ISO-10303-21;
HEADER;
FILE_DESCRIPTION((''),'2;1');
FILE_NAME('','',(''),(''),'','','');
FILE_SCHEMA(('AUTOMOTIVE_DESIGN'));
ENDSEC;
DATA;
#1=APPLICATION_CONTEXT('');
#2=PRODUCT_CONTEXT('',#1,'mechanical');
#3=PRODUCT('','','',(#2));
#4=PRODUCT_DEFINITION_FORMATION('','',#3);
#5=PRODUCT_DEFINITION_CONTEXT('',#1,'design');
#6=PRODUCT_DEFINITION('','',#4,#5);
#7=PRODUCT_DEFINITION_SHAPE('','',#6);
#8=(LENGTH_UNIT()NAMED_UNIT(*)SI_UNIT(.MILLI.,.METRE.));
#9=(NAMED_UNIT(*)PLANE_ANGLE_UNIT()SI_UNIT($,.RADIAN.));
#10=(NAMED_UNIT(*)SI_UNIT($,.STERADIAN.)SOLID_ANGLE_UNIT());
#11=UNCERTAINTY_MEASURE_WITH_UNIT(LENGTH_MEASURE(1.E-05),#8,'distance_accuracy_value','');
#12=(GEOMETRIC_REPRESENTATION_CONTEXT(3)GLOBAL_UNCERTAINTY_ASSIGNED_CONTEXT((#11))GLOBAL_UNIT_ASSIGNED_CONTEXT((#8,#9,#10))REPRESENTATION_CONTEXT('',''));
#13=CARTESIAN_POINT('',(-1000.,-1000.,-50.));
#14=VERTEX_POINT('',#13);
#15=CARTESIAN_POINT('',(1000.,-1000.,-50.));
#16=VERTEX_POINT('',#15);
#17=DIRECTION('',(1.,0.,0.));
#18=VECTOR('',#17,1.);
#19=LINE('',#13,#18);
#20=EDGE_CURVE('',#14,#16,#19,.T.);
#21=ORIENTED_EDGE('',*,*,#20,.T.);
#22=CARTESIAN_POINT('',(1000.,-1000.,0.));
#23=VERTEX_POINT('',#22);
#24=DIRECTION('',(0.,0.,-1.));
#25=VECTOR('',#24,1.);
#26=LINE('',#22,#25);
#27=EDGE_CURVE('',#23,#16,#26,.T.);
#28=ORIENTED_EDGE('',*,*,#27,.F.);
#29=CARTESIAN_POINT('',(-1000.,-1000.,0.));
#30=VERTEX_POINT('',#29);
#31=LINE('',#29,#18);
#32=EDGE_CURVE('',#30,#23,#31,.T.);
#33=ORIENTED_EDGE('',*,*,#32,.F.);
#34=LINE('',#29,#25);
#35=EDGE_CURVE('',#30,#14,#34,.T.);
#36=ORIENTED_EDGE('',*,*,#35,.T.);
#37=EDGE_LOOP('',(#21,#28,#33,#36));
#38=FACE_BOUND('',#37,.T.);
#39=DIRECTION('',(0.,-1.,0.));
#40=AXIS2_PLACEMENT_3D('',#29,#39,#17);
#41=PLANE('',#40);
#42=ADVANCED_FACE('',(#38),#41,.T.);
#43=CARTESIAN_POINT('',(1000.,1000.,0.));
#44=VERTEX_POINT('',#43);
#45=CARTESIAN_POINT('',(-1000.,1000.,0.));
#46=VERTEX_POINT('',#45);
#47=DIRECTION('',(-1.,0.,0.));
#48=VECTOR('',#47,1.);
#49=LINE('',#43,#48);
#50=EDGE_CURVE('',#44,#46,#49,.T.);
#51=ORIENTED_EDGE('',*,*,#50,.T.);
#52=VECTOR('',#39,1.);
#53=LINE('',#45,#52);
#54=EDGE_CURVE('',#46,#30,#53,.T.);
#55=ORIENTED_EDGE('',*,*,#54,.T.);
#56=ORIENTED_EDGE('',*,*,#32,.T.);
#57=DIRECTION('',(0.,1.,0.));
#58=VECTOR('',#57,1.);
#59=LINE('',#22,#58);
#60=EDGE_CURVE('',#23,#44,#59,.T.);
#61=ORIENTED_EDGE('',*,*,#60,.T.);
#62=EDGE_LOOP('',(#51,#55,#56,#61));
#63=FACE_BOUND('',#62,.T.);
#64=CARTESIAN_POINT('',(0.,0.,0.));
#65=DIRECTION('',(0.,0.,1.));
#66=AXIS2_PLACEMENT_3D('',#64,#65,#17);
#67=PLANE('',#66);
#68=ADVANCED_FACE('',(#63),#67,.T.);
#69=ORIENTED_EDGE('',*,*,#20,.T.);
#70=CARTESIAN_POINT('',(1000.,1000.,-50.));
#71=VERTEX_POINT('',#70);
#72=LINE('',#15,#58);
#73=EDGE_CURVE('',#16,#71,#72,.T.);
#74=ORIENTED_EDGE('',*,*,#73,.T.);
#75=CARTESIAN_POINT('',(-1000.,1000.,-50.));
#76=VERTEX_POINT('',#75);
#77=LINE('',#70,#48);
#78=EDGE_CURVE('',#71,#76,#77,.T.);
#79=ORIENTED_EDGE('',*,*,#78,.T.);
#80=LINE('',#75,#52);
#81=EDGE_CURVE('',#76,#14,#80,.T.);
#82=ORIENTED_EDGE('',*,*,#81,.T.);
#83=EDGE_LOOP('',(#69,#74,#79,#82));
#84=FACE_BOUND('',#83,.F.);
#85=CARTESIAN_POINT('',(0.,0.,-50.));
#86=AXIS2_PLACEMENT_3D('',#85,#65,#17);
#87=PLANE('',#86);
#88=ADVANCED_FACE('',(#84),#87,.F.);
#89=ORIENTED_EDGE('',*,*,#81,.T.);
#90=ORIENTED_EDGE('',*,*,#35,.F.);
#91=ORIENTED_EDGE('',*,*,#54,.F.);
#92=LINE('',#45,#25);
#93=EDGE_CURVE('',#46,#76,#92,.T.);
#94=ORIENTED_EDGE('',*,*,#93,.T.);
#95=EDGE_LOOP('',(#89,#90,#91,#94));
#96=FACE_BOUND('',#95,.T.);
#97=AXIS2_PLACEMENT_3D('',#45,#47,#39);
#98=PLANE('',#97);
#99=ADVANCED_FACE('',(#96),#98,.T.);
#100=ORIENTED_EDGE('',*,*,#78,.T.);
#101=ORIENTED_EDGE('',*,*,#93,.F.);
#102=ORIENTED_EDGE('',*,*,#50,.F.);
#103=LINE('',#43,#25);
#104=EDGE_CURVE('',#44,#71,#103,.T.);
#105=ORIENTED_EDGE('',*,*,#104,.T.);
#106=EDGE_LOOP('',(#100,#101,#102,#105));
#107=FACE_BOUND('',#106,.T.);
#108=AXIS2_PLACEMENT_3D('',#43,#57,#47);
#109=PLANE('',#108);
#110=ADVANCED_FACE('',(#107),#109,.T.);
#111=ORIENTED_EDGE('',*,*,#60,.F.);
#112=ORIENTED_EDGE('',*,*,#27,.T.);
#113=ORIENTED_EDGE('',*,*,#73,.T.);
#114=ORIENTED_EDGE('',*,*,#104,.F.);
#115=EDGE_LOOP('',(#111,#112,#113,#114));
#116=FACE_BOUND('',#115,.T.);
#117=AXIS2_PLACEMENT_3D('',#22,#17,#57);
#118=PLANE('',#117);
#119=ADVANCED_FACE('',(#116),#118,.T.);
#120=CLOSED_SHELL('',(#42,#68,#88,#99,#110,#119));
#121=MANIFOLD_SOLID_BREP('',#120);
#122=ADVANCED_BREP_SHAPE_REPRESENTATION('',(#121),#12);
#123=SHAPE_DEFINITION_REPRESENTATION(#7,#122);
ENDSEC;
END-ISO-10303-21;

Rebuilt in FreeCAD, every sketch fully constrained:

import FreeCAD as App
import Part
import Sketcher

V = App.Vector


def add_polygon(sketch, points):
    """Adds a closed chain of lines whose ends are joined by coincident constraints."""
    first, n = sketch.GeometryCount, len(points)
    for a, b in zip(points, points[1:] + points[:1]):
        sketch.addGeometry(Part.LineSegment(App.Vector(*a, 0), App.Vector(*b, 0)), False)
    for i in range(n):
        sketch.addConstraint(Sketcher.Constraint("Coincident", first + i, 2, first + (i + 1) % n, 1))

doc = App.newDocument("Part")
body = doc.addObject("PartDesign::Body", "Body")

# Sketch on XY plane
sketch1 = body.newObject("Sketcher::SketchObject", "Sketch")
sketch1.AttachmentSupport = (doc.getObject("XY_Plane"), [""])
sketch1.MapMode = "FlatFace"
add_polygon(sketch1, [(1000, -1000), (1000, 1000), (-1000, 1000), (-1000, -1000)])  # lines 0-3
sketch1.addConstraint([
    Sketcher.Constraint("Vertical", 0),
    Sketcher.Constraint("Horizontal", 1),
    Sketcher.Constraint("Vertical", 2),
    Sketcher.Constraint("Horizontal", 3),
    Sketcher.Constraint("Symmetric", 0, 2, 2, 2, -1, 1),
    Sketcher.Constraint("Equal", 3, 0),
    Sketcher.Constraint("DistanceX", 1, 2, 1, 1, 2000.0),
])
pad1 = body.newObject("PartDesign::Pad", "Pad")
pad1.Profile = sketch1
pad1.Length = 50
pad1.Reversed = True

doc.recompute()
